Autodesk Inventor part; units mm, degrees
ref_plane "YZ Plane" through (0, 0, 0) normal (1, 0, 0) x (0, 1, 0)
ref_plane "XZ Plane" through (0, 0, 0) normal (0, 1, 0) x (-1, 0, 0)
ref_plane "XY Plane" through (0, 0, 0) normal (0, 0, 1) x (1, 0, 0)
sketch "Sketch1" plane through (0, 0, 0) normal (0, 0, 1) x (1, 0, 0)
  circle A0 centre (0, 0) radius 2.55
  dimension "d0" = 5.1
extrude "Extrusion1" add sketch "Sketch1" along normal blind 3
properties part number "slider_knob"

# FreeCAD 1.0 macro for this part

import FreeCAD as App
import Part
import Sketcher
Q = App.Units.Quantity

doc = App.newDocument("Part")
body = doc.addObject("PartDesign::Body", "Body")

sketch1 = doc.addObject("Sketcher::SketchObject", "Sketch")
body.addObject(sketch1)
sketch1.AttachmentSupport = (doc.XY_Plane, [""])
sketch1.MapMode = "FlatFace"
sketch1.addGeometry(Part.Circle(App.Vector(0, 0, 0), App.Vector(0, 0, 1), 2.55), False)
sketch1.addConstraint([
    Sketcher.Constraint("Coincident", 0, 3, -1, 1),
    Sketcher.Constraint("Diameter", 0, Q("5.1 mm")),
])
pad1 = doc.addObject("PartDesign::Pad", "Pad")
body.addObject(pad1)
pad1.Profile = sketch1
pad1.Length = 3

doc.recompute()
